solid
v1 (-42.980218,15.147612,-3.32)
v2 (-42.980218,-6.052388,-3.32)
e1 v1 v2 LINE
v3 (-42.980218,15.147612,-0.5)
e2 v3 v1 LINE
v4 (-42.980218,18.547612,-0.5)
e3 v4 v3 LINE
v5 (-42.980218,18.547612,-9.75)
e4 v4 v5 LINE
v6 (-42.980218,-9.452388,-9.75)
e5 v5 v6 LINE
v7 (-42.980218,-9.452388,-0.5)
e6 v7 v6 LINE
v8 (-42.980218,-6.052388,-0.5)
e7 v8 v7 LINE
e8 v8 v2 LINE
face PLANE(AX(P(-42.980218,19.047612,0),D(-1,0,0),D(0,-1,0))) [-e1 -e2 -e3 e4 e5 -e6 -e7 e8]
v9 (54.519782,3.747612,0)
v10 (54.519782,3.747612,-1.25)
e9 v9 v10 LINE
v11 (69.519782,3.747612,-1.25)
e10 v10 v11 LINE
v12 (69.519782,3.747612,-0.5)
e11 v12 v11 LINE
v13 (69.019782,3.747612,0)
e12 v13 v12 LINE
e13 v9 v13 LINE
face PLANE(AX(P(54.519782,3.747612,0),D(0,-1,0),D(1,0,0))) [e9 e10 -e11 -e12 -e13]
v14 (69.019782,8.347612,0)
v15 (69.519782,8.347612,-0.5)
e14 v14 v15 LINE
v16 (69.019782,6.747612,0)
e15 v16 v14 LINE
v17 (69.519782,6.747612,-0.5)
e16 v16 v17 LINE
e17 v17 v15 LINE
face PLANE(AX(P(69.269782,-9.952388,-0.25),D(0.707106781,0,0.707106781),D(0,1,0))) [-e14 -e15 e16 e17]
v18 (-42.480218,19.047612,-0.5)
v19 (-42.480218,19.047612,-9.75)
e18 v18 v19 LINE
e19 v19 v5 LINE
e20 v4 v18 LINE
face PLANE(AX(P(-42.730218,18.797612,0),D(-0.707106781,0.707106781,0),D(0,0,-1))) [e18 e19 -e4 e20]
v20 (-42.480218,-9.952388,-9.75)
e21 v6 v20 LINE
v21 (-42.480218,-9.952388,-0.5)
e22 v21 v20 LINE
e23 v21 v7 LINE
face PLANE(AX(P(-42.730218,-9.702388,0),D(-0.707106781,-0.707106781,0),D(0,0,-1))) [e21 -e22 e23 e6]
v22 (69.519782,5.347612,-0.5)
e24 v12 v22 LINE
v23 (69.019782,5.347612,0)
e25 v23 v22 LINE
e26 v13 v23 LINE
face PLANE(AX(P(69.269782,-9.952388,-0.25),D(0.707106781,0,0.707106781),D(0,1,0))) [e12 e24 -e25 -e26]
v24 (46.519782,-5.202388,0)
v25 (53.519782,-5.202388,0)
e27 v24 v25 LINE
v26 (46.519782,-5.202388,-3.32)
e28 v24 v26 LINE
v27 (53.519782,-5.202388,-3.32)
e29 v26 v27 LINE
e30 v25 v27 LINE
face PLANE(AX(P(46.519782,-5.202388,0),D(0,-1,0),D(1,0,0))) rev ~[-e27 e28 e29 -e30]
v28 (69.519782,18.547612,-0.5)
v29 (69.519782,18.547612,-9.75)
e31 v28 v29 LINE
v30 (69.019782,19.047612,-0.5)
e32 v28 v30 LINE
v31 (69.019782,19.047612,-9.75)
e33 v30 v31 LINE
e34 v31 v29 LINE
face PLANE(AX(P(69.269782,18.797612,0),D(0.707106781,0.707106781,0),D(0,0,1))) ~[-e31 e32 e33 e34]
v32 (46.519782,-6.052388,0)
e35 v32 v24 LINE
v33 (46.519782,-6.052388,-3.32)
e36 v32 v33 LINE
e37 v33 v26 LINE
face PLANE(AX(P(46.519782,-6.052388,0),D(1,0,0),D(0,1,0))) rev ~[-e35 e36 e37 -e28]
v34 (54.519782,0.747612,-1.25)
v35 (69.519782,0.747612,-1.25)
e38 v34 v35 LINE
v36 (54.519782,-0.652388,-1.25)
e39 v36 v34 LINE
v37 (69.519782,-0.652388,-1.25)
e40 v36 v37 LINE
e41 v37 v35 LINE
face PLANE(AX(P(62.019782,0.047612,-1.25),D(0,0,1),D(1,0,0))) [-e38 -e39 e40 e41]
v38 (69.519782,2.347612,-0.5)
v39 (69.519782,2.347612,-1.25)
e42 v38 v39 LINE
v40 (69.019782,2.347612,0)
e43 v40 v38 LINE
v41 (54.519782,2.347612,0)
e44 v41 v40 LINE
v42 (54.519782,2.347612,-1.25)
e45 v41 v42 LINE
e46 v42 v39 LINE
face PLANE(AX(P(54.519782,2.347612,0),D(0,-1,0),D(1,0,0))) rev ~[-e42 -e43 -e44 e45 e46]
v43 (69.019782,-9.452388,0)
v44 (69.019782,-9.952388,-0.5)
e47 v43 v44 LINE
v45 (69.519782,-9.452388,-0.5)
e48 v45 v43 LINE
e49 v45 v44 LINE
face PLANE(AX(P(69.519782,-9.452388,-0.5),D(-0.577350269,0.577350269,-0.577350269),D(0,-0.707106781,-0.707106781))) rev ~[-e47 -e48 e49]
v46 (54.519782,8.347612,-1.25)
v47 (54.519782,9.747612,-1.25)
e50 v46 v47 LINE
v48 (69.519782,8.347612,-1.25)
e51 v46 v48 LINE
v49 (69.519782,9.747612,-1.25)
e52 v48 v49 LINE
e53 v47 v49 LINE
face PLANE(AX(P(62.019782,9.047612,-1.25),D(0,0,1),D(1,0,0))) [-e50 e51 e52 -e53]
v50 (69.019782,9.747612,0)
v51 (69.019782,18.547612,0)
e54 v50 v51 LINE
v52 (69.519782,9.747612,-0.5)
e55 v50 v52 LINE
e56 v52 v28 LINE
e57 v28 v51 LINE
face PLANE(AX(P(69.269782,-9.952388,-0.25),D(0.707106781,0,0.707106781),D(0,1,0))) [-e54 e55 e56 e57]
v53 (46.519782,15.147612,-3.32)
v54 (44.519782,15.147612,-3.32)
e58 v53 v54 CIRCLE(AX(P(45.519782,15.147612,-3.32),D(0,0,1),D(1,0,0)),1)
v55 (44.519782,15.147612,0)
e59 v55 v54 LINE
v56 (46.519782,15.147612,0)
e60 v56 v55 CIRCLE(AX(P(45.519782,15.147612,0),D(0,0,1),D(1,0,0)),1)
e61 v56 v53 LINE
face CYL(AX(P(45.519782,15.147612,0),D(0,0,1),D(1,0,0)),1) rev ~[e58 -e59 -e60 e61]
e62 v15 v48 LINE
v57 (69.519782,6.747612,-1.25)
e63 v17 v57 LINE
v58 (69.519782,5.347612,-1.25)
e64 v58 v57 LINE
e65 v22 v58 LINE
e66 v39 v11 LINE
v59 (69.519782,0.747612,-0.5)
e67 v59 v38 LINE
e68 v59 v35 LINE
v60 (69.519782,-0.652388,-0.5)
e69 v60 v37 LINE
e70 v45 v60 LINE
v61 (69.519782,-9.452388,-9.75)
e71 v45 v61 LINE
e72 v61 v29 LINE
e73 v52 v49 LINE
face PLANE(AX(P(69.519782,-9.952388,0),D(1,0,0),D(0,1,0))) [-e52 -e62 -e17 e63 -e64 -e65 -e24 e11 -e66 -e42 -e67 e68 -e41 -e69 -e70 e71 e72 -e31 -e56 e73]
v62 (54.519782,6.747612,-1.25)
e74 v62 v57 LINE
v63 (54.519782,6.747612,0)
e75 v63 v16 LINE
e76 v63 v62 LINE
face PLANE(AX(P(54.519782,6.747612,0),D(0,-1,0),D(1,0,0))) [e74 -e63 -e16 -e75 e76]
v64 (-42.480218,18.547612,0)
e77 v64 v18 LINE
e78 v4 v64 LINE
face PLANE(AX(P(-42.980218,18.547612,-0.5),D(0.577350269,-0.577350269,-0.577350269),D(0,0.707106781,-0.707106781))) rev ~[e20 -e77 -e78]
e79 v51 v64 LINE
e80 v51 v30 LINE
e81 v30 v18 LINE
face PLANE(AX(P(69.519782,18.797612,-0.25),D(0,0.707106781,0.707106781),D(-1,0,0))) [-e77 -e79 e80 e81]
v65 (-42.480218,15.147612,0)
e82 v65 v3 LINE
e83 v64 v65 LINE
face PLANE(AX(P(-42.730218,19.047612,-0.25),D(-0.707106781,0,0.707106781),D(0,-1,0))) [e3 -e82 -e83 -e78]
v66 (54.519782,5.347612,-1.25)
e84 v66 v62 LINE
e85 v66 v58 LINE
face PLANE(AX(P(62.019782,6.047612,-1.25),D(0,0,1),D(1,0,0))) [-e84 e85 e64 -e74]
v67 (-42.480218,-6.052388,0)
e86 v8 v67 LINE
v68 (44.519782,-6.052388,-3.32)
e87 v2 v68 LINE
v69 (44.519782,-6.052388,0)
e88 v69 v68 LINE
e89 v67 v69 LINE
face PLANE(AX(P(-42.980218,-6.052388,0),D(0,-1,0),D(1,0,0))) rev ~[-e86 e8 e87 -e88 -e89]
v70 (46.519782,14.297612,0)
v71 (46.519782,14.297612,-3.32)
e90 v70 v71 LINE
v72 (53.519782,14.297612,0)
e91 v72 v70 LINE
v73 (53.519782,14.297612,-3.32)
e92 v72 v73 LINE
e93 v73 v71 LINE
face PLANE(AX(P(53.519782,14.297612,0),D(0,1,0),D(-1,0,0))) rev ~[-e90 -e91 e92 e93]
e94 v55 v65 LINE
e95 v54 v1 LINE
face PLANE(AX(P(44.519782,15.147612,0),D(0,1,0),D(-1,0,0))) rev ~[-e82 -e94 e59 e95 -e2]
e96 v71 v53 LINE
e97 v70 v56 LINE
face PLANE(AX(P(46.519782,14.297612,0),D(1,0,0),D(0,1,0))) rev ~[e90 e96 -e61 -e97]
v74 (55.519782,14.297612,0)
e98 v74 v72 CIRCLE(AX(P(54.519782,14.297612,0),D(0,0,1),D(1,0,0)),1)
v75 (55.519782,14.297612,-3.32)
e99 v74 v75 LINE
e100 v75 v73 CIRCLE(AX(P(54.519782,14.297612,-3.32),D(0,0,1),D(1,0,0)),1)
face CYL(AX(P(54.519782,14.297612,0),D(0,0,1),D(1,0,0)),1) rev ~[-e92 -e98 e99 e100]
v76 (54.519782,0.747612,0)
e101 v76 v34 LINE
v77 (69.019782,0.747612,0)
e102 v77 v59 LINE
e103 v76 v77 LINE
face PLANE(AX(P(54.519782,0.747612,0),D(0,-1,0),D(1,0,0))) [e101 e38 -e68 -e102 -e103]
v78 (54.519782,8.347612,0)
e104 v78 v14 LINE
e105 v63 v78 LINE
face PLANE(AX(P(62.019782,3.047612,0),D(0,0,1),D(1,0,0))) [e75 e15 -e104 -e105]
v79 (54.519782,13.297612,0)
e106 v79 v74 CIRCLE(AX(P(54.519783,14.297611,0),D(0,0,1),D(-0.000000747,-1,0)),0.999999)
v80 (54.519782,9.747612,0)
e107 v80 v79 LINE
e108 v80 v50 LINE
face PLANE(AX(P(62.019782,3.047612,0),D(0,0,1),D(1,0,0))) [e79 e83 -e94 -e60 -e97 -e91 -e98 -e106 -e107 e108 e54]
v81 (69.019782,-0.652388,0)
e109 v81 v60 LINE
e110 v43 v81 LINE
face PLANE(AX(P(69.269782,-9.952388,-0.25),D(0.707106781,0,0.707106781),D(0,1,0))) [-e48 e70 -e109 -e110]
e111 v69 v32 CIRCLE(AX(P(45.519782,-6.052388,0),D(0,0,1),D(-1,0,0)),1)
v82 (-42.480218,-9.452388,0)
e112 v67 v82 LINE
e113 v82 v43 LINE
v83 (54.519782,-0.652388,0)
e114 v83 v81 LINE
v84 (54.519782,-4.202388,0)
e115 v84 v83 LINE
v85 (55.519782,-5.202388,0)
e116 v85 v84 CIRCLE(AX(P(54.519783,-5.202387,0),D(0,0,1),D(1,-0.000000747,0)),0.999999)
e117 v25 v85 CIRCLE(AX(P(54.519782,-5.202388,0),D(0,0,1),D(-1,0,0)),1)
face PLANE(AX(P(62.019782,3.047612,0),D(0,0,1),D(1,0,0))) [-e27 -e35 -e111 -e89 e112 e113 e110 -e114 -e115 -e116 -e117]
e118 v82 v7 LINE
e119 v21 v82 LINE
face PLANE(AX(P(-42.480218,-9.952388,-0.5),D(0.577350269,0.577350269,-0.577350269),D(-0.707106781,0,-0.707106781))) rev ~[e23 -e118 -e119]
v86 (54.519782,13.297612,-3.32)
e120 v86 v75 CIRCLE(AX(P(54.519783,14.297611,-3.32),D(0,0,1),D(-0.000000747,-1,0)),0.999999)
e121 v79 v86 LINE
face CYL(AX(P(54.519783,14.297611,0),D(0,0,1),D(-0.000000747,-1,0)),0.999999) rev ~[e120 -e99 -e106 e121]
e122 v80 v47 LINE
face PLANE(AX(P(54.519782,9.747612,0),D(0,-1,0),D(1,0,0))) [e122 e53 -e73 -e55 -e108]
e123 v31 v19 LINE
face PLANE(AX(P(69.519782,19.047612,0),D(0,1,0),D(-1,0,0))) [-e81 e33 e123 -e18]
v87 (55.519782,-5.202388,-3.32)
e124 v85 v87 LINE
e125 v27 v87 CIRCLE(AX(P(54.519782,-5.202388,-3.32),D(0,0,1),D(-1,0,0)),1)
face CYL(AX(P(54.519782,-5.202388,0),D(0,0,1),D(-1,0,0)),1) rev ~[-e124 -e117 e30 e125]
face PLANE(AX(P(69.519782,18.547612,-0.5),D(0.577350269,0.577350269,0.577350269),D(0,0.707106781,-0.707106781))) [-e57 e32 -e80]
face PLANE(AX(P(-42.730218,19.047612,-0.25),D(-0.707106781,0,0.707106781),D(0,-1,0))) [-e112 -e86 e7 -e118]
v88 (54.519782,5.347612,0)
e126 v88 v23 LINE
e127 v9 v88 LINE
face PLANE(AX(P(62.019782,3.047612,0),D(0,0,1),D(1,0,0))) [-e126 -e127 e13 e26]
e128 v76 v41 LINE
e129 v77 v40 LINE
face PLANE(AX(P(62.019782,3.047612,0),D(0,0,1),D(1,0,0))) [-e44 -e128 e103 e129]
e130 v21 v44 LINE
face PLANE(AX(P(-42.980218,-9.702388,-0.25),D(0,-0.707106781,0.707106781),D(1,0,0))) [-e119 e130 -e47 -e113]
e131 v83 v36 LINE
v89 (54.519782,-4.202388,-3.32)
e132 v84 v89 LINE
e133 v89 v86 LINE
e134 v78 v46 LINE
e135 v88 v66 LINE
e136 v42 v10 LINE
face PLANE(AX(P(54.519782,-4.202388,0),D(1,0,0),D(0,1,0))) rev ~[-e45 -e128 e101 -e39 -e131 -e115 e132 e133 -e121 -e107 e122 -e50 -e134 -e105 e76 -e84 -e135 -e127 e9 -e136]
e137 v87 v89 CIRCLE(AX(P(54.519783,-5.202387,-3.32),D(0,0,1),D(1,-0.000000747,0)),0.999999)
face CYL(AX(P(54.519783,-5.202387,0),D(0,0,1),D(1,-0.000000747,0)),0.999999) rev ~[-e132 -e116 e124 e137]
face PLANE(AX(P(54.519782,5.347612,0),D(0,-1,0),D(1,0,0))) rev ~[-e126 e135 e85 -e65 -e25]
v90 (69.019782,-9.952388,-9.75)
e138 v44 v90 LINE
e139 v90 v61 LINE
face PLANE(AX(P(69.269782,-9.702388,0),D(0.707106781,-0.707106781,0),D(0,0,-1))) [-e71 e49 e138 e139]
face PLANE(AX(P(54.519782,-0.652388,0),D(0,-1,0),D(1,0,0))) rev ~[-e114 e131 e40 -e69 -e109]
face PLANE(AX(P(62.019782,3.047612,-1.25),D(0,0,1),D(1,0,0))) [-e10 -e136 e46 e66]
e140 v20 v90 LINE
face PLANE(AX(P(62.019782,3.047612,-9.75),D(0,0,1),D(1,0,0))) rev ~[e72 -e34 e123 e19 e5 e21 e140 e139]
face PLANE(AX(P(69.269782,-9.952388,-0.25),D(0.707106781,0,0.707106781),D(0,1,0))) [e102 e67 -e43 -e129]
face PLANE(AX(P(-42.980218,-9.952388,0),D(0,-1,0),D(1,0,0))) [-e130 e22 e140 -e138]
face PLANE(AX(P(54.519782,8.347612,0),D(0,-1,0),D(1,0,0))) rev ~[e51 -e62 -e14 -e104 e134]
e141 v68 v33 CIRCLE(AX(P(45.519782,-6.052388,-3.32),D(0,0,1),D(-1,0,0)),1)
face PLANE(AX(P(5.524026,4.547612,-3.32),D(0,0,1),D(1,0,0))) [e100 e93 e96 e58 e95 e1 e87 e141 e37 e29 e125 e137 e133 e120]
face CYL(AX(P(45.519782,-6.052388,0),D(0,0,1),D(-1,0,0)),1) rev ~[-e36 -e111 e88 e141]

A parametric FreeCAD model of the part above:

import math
import FreeCAD as App
import Part
import Sketcher
from FreeCAD import Vector


def edges_at(feature, points):
    """Names of the edges that pass closest to the given points."""
    edges = feature.Shape.Edges
    near = lambda p: min(range(len(edges)), key=lambda i: edges[i].distToShape(Part.Vertex(*p))[0])
    return sorted({f"Edge{near(p) + 1}" for p in points})

doc = App.newDocument("Part")
body = doc.addObject("PartDesign::Body", "Body")

# Sketch on XY plane
sketch1 = body.newObject("Sketcher::SketchObject", "Sketch")
sketch1.AttachmentSupport = (doc.getObject("XY_Plane"), [""])
sketch1.MapMode = "FlatFace"
sketch1.addGeometry(Part.LineSegment(Vector(70, 19, 0), Vector(-43, 19, 0)), False)
sketch1.addGeometry(Part.LineSegment(Vector(-43, 19, 0), Vector(-43, -10, 0)), False)
sketch1.addGeometry(Part.LineSegment(Vector(-43, -10, 0), Vector(70, -10, 0)), False)
sketch1.addGeometry(Part.LineSegment(Vector(70, -10, 0), Vector(70, 19, 0)), False)
sketch1.addConstraint(Sketcher.Constraint("Coincident", 0, 2, 1, 1))
sketch1.addConstraint(Sketcher.Constraint("Coincident", 1, 2, 2, 1))
sketch1.addConstraint(Sketcher.Constraint("Coincident", 2, 2, 3, 1))
sketch1.addConstraint(Sketcher.Constraint("Coincident", 3, 2, 0, 1))
sketch1.addConstraint(Sketcher.Constraint("Horizontal", 0))
sketch1.addConstraint(Sketcher.Constraint("Vertical", 1))
sketch1.addConstraint(Sketcher.Constraint("Horizontal", 2))
sketch1.addConstraint(Sketcher.Constraint("Vertical", 3))
sketch1.addConstraint(Sketcher.Constraint("DistanceY", 1, 2, 1, 1, 29.0))
sketch1.addConstraint(Sketcher.Constraint("DistanceX", 0, 2, 0, 1, 112.5))
sketch1.addConstraint(Sketcher.Constraint("DistanceX", 0, 2, -1, 1, 42.980218))
sketch1.addConstraint(Sketcher.Constraint("DistanceY", -1, 1, 0, 2, 19.047612))
pad1 = body.newObject("PartDesign::Pad", "Pad")
pad1.Profile = sketch1
pad1.Length = 9.75
pad1.Reversed = True
doc.recompute()

chamfer = body.newObject("PartDesign::Chamfer", "Chamfer")
chamfer.Base = (pad1, edges_at(pad1, [
    (13.27, 19.048, 0),
    (-42.98, 4.548, 0),
    (13.27, -9.952, 0),
    (69.52, 4.548, 0),
    (-42.98, 19.048, -4.875),
    (-42.98, -9.952, -4.875),
    (69.52, 19.048, -4.875),
    (69.52, -9.952, -4.875),
]))
chamfer.Size = 0.5

# Sketch on XY plane
sketch2 = body.newObject("Sketcher::SketchObject", "Sketch001")
sketch2.AttachmentSupport = (doc.getObject("XY_Plane"), [""])
sketch2.MapMode = "FlatFace"
sketch2.addGeometry(Part.LineSegment(Vector(-43, 15.1, 0), Vector(-43, -6.1, 0)), False)
sketch2.addGeometry(Part.LineSegment(Vector(-43, -6.1, 0), Vector(44.5, -6.1, 0)), False)
sketch2.addGeometry(Part.ArcOfCircle(Part.Circle(Vector(45.5, -6.1, 0), Vector(0, 0, 1), 1), math.radians(180), math.radians(360)), False)
sketch2.addGeometry(Part.LineSegment(Vector(46.5, -6.1, 0), Vector(46.5, -5.2, 0)), False)
sketch2.addGeometry(Part.LineSegment(Vector(46.5, -5.2, 0), Vector(53.5, -5.2, 0)), False)
sketch2.addGeometry(Part.ArcOfCircle(Part.Circle(Vector(54.5, -5.2, 0), Vector(0, 0, 1), 1), math.radians(180), math.radians(360)), False)
sketch2.addGeometry(Part.ArcOfCircle(Part.Circle(Vector(54.5, -5.2, 0), Vector(0, 0, 1), 1), math.radians(0), math.radians(90)), False)
sketch2.addGeometry(Part.LineSegment(Vector(54.5, -4.2, 0), Vector(54.5, 13.3, 0)), False)
sketch2.addGeometry(Part.ArcOfCircle(Part.Circle(Vector(54.5, 14.3, 0), Vector(0, 0, 1), 1), math.radians(-90), math.radians(0)), False)
sketch2.addGeometry(Part.ArcOfCircle(Part.Circle(Vector(54.5, 14.3, 0), Vector(0, 0, 1), 1), math.radians(0), math.radians(180)), False)
sketch2.addGeometry(Part.LineSegment(Vector(53.5, 14.3, 0), Vector(46.5, 14.3, 0)), False)
sketch2.addGeometry(Part.LineSegment(Vector(46.5, 14.3, 0), Vector(46.5, 15.1, 0)), False)
sketch2.addGeometry(Part.ArcOfCircle(Part.Circle(Vector(45.5, 15.1, 0), Vector(0, 0, 1), 1), math.radians(0), math.radians(180)), False)
sketch2.addGeometry(Part.LineSegment(Vector(44.5, 15.1, 0), Vector(-43, 15.1, 0)), False)
sketch2.addConstraint(Sketcher.Constraint("Coincident", 0, 2, 1, 1))
sketch2.addConstraint(Sketcher.Constraint("Coincident", 1, 2, 2, 1))
sketch2.addConstraint(Sketcher.Constraint("Tangent", 2, 2, 3, 1))
sketch2.addConstraint(Sketcher.Constraint("Coincident", 3, 2, 4, 1))
sketch2.addConstraint(Sketcher.Constraint("Coincident", 4, 2, 5, 1))
sketch2.addConstraint(Sketcher.Constraint("Tangent", 5, 2, 6, 1))
sketch2.addConstraint(Sketcher.Constraint("Coincident", 6, 2, 7, 1))
sketch2.addConstraint(Sketcher.Constraint("Coincident", 7, 2, 8, 1))
sketch2.addConstraint(Sketcher.Constraint("Tangent", 8, 2, 9, 1))
sketch2.addConstraint(Sketcher.Constraint("Coincident", 9, 2, 10, 1))
sketch2.addConstraint(Sketcher.Constraint("Coincident", 10, 2, 11, 1))
sketch2.addConstraint(Sketcher.Constraint("Tangent", 11, 2, 12, 1))
sketch2.addConstraint(Sketcher.Constraint("Coincident", 12, 2, 13, 1))
sketch2.addConstraint(Sketcher.Constraint("Coincident", 13, 2, 0, 1))
sketch2.addConstraint(Sketcher.Constraint("Vertical", 0))
sketch2.addConstraint(Sketcher.Constraint("Horizontal", 1))
sketch2.addConstraint(Sketcher.Constraint("Vertical", 3))
sketch2.addConstraint(Sketcher.Constraint("Horizontal", 4))
sketch2.addConstraint(Sketcher.Constraint("Vertical", 7))
sketch2.addConstraint(Sketcher.Constraint("Horizontal", 10))
sketch2.addConstraint(Sketcher.Constraint("Vertical", 11))
sketch2.addConstraint(Sketcher.Constraint("Horizontal", 13))
sketch2.addConstraint(Sketcher.Constraint("Equal", 2, 5))
sketch2.addConstraint(Sketcher.Constraint("Equal", 5, 6))
sketch2.addConstraint(Sketcher.Constraint("Equal", 6, 8))
sketch2.addConstraint(Sketcher.Constraint("Equal", 8, 9))
sketch2.addConstraint(Sketcher.Constraint("Equal", 9, 12))
sketch2.addConstraint(Sketcher.Constraint("Horizontal", 2, 3, 0, 2))
sketch2.addConstraint(Sketcher.Constraint("Horizontal", 6, 3, 3, 2))
sketch2.addConstraint(Sketcher.Constraint("Horizontal", 4, 2, 5, 2))
sketch2.addConstraint(Sketcher.Constraint("Horizontal", 9, 3, 8, 2))
sketch2.addConstraint(Sketcher.Constraint("Horizontal", 8, 2, 9, 2))
sketch2.addConstraint(Sketcher.Constraint("Horizontal", 11, 2, 12, 2))
sketch2.addConstraint(Sketcher.Constraint("Vertical", 6, 3, 8, 3))
sketch2.addConstraint(Sketcher.Constraint("Vertical", 2, 3, 12, 3))
sketch2.addConstraint(Sketcher.Constraint("Vertical", 9, 3, 6, 2))
sketch2.addConstraint(Sketcher.Constraint("Equal", 3, 11))
sketch2.addConstraint(Sketcher.Constraint("Radius", 2, 1.0))
sketch2.addConstraint(Sketcher.Constraint("DistanceX", 4, 1, 4, 2, 7.0))
sketch2.addConstraint(Sketcher.Constraint("DistanceX", 1, 1, 1, 2, 87.5))
sketch2.addConstraint(Sketcher.Constraint("DistanceY", 0, 2, 0, 1, 21.2))
sketch2.addConstraint(Sketcher.Constraint("DistanceY", 7, 1, 7, 2, 17.5))
sketch2.addConstraint(Sketcher.Constraint("DistanceY", -1, 1, 8, 3, 14.297611))
sketch2.addConstraint(Sketcher.Constraint("DistanceX", -1, 1, 8, 2, 55.519782))
pocket1 = body.newObject("PartDesign::Pocket", "Pocket")
pocket1.Profile = sketch2
pocket1.Length = 3.32

# Sketch on XY plane
sketch3 = body.newObject("Sketcher::SketchObject", "Sketch002")
sketch3.AttachmentSupport = (doc.getObject("XY_Plane"), [""])
sketch3.MapMode = "FlatFace"
sketch3.addGeometry(Part.LineSegment(Vector(54.5, 9.7, 0), Vector(54.5, 8.3, 0)), False)
sketch3.addGeometry(Part.LineSegment(Vector(54.5, 8.3, 0), Vector(69.5, 8.3, 0)), False)
sketch3.addGeometry(Part.LineSegment(Vector(69.5, 8.3, 0), Vector(69.5, 9.7, 0)), False)
sketch3.addGeometry(Part.LineSegment(Vector(69.5, 9.7, 0), Vector(54.5, 9.7, 0)), False)
sketch3.addGeometry(Part.LineSegment(Vector(54.5, 6.7, 0), Vector(54.5, 5.3, 0)), False)
sketch3.addGeometry(Part.LineSegment(Vector(54.5, 5.3, 0), Vector(69.5, 5.3, 0)), False)
sketch3.addGeometry(Part.LineSegment(Vector(69.5, 5.3, 0), Vector(69.5, 6.7, 0)), False)
sketch3.addGeometry(Part.LineSegment(Vector(69.5, 6.7, 0), Vector(54.5, 6.7, 0)), False)
sketch3.addGeometry(Part.LineSegment(Vector(54.5, 3.7, 0), Vector(54.5, 2.3, 0)), False)
sketch3.addGeometry(Part.LineSegment(Vector(54.5, 2.3, 0), Vector(69.5, 2.3, 0)), False)
sketch3.addGeometry(Part.LineSegment(Vector(69.5, 2.3, 0), Vector(69.5, 3.7, 0)), False)
sketch3.addGeometry(Part.LineSegment(Vector(69.5, 3.7, 0), Vector(54.5, 3.7, 0)), False)
sketch3.addGeometry(Part.LineSegment(Vector(54.5, 0.7, 0), Vector(54.5, -0.7, 0)), False)
sketch3.addGeometry(Part.LineSegment(Vector(54.5, -0.7, 0), Vector(69.5, -0.7, 0)), False)
sketch3.addGeometry(Part.LineSegment(Vector(69.5, -0.7, 0), Vector(69.5, 0.7, 0)), False)
sketch3.addGeometry(Part.LineSegment(Vector(69.5, 0.7, 0), Vector(54.5, 0.7, 0)), False)
sketch3.addConstraint(Sketcher.Constraint("Coincident", 0, 2, 1, 1))
sketch3.addConstraint(Sketcher.Constraint("Coincident", 1, 2, 2, 1))
sketch3.addConstraint(Sketcher.Constraint("Coincident", 2, 2, 3, 1))
sketch3.addConstraint(Sketcher.Constraint("Coincident", 3, 2, 0, 1))
sketch3.addConstraint(Sketcher.Constraint("Coincident", 4, 2, 5, 1))
sketch3.addConstraint(Sketcher.Constraint("Coincident", 5, 2, 6, 1))
sketch3.addConstraint(Sketcher.Constraint("Coincident", 6, 2, 7, 1))
sketch3.addConstraint(Sketcher.Constraint("Coincident", 7, 2, 4, 1))
sketch3.addConstraint(Sketcher.Constraint("Coincident", 8, 2, 9, 1))
sketch3.addConstraint(Sketcher.Constraint("Coincident", 9, 2, 10, 1))
sketch3.addConstraint(Sketcher.Constraint("Coincident", 10, 2, 11, 1))
sketch3.addConstraint(Sketcher.Constraint("Coincident", 11, 2, 8, 1))
sketch3.addConstraint(Sketcher.Constraint("Coincident", 12, 2, 13, 1))
sketch3.addConstraint(Sketcher.Constraint("Coincident", 13, 2, 14, 1))
sketch3.addConstraint(Sketcher.Constraint("Coincident", 14, 2, 15, 1))
sketch3.addConstraint(Sketcher.Constraint("Coincident", 15, 2, 12, 1))
sketch3.addConstraint(Sketcher.Constraint("Vertical", 0))
sketch3.addConstraint(Sketcher.Constraint("Horizontal", 1))
sketch3.addConstraint(Sketcher.Constraint("Vertical", 2))
sketch3.addConstraint(Sketcher.Constraint("Horizontal", 3))
sketch3.addConstraint(Sketcher.Constraint("Vertical", 4))
sketch3.addConstraint(Sketcher.Constraint("Horizontal", 5))
sketch3.addConstraint(Sketcher.Constraint("Vertical", 6))
sketch3.addConstraint(Sketcher.Constraint("Horizontal", 7))
sketch3.addConstraint(Sketcher.Constraint("Vertical", 8))
sketch3.addConstraint(Sketcher.Constraint("Horizontal", 9))
sketch3.addConstraint(Sketcher.Constraint("Vertical", 10))
sketch3.addConstraint(Sketcher.Constraint("Horizontal", 11))
sketch3.addConstraint(Sketcher.Constraint("Vertical", 12))
sketch3.addConstraint(Sketcher.Constraint("Horizontal", 13))
sketch3.addConstraint(Sketcher.Constraint("Vertical", 14))
sketch3.addConstraint(Sketcher.Constraint("Horizontal", 15))
sketch3.addConstraint(Sketcher.Constraint("Vertical", 3, 2, 4, 2))
sketch3.addConstraint(Sketcher.Constraint("Vertical", 2, 2, 5, 2))
sketch3.addConstraint(Sketcher.Constraint("Vertical", 7, 2, 8, 2))
sketch3.addConstraint(Sketcher.Constraint("Vertical", 6, 2, 9, 2))
sketch3.addConstraint(Sketcher.Constraint("Vertical", 11, 2, 12, 2))
sketch3.addConstraint(Sketcher.Constraint("Vertical", 10, 2, 13, 2))
sketch3.addConstraint(Sketcher.Constraint("Equal", 2, 4))
sketch3.addConstraint(Sketcher.Constraint("Equal", 6, 8))
sketch3.addConstraint(Sketcher.Constraint("Equal", 10, 12))
sketch3.addConstraint(Sketcher.Constraint("DistanceX", 1, 1, 1, 2, 15.0))
sketch3.addConstraint(Sketcher.Constraint("DistanceY", 0, 2, 0, 1, 1.4))
sketch3.addConstraint(Sketcher.Constraint("DistanceY", 4, 2, 0, 2, 3.0))
sketch3.addConstraint(Sketcher.Constraint("DistanceY", 8, 2, 4, 2, 3.0))
sketch3.addConstraint(Sketcher.Constraint("DistanceY", 12, 2, 8, 2, 3.0))
sketch3.addConstraint(Sketcher.Constraint("DistanceY", -1, 1, 4, 2, 5.347612))
sketch3.addConstraint(Sketcher.Constraint("DistanceX", -1, 1, 0, 2, 54.519782))
pocket2 = body.newObject("PartDesign::Pocket", "Pocket001")
pocket2.Profile = sketch3
pocket2.Length = 1.25

doc.recompute()
